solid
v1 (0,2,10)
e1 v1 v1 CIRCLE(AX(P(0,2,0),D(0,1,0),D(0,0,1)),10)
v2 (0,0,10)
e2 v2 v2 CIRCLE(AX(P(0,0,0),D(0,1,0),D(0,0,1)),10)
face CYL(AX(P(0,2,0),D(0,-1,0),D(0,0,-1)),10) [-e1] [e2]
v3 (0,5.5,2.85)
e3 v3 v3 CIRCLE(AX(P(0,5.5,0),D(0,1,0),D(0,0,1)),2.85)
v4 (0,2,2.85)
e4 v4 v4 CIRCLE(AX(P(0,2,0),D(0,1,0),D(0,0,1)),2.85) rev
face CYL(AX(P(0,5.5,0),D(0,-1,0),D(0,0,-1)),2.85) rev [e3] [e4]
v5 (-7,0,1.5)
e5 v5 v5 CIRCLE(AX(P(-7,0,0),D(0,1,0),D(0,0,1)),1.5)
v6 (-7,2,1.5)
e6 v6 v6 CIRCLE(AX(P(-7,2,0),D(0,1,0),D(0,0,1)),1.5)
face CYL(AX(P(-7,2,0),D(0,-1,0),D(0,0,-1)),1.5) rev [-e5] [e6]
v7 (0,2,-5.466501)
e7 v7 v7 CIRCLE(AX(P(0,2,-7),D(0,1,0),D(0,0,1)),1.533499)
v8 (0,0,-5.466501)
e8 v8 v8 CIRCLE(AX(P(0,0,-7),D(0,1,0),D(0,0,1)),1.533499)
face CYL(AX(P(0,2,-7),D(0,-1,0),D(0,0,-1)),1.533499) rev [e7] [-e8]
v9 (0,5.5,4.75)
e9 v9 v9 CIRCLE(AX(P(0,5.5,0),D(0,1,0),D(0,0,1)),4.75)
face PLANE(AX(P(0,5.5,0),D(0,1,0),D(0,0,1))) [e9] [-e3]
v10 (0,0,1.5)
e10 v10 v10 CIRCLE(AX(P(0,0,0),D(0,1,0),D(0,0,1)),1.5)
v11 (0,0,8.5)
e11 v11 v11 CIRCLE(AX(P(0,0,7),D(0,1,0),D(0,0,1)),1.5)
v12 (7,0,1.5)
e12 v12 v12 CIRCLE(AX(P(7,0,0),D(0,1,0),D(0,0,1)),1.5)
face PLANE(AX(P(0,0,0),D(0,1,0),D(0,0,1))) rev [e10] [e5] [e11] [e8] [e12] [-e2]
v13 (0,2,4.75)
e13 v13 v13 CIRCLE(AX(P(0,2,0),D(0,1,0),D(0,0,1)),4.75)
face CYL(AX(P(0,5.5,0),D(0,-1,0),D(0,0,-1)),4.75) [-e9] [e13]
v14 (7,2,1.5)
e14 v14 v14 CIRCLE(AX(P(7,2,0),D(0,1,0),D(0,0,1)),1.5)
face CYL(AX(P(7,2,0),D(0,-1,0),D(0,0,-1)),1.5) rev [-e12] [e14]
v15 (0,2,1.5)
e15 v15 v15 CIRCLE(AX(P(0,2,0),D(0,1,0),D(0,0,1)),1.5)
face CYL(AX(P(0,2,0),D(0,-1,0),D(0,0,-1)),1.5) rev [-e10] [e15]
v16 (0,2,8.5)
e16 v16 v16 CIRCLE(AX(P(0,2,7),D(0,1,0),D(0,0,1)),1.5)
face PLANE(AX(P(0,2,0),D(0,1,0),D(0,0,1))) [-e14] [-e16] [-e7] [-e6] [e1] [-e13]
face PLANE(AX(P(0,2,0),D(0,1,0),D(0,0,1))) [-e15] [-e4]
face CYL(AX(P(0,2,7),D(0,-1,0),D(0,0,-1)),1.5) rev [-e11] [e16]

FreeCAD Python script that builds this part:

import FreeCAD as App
import Part
import Sketcher

V = App.Vector

doc = App.newDocument("Part")
params = doc.addObject("Spreadsheet::Sheet", "Params")
for row, (alias, value) in enumerate([
    ("sketch1_diameter", "20 mm"),
    ("sketch1_diameter2", "3 mm"),
    ("pad1_length", "2 mm"),
    ("sketch2_diameter", "9.5 mm"),
    ("sketch2_diameter2", "5.7 mm"),
    ("pad2_length", "3.5 mm"),
], start=1):
    params.set(f"A{row}", alias)
    params.set(f"B{row}", "=" + value)
    params.setAlias(f"B{row}", alias)

body = doc.addObject("PartDesign::Body", "Body")

# Sketch on XZ plane
sketch1 = body.newObject("Sketcher::SketchObject", "Sketch")
sketch1.AttachmentSupport = (doc.getObject("XZ_Plane"), [""])
sketch1.MapMode = "FlatFace"
sketch1.addGeometry(Part.Circle(V(0, 0, 0), V(0, 0, 1), 10), False)
sketch1.addGeometry(Part.Circle(V(0, -7, 0), V(0, 0, 1), 1.533499), False)
sketch1.addGeometry(Part.Circle(V(-7, 0, 0), V(0, 0, 1), 1.5), False)
sketch1.addGeometry(Part.Circle(V(0, 7, 0), V(0, 0, 1), 1.5), False)
sketch1.addGeometry(Part.Circle(V(7, 0, 0), V(0, 0, 1), 1.5), False)
sketch1.addGeometry(Part.Circle(V(0, 0, 0), V(0, 0, 1), 1.5), False)
sketch1.addConstraint(Sketcher.Constraint("Coincident", 0, 3, -1, 1))
sketch1.addConstraint(Sketcher.Constraint("Coincident", 5, 3, -1, 1))
sketch1.addConstraint(Sketcher.Constraint("Equal", 2, 3))
sketch1.addConstraint(Sketcher.Constraint("Equal", 3, 4))
sketch1.addConstraint(Sketcher.Constraint("Equal", 4, 5))
sketch1.addConstraint(Sketcher.Constraint("Symmetric", 1, 3, 3, 3, -1, 1))
sketch1.addConstraint(Sketcher.Constraint("Symmetric", 2, 3, 4, 3, -1, 1))
sketch1.addConstraint(Sketcher.Constraint("PointOnObject", 1, 3, -2))
sketch1.addConstraint(Sketcher.Constraint("PointOnObject", 2, 3, -1))
sketch1.addConstraint(Sketcher.Constraint("Diameter", 0, 20.0))
sketch1.addConstraint(Sketcher.Constraint("Diameter", 2, 3.0))
sketch1.addConstraint(Sketcher.Constraint("Diameter", 1, 3.066999))
sketch1.addConstraint(Sketcher.Constraint("DistanceY", 1, 3, -1, 1, 7.0))
sketch1.addConstraint(Sketcher.Constraint("DistanceX", 2, 3, -1, 1, 7.0))
sketch1.setExpression("Constraints[9]", "Params.sketch1_diameter")
sketch1.setExpression("Constraints[10]", "Params.sketch1_diameter2")
pad1 = body.newObject("PartDesign::Pad", "Pad")
pad1.Profile = sketch1
pad1.setExpression("Length", "Params.pad1_length")
pad1.Reversed = True

# Sketch on XZ plane
sketch2 = body.newObject("Sketcher::SketchObject", "Sketch001")
sketch2.AttachmentSupport = (doc.getObject("XZ_Plane"), [""])
sketch2.MapMode = "FlatFace"
sketch2.AttachmentOffset = App.Placement(V(0, 0, -2), App.Rotation())
sketch2.addGeometry(Part.Circle(V(0, 0, 0), V(0, 0, 1), 4.75), False)
sketch2.addGeometry(Part.Circle(V(0, 0, 0), V(0, 0, 1), 2.85), False)
sketch2.addConstraint(Sketcher.Constraint("Coincident", 0, 3, -1, 1))
sketch2.addConstraint(Sketcher.Constraint("Coincident", 1, 3, -1, 1))
sketch2.addConstraint(Sketcher.Constraint("Diameter", 0, 9.5))
sketch2.addConstraint(Sketcher.Constraint("Diameter", 1, 5.7))
sketch2.setExpression("Constraints[2]", "Params.sketch2_diameter")
sketch2.setExpression("Constraints[3]", "Params.sketch2_diameter2")
pad2 = body.newObject("PartDesign::Pad", "Pad001")
pad2.Profile = sketch2
pad2.setExpression("Length", "Params.pad2_length")
pad2.Reversed = True

doc.recompute()
